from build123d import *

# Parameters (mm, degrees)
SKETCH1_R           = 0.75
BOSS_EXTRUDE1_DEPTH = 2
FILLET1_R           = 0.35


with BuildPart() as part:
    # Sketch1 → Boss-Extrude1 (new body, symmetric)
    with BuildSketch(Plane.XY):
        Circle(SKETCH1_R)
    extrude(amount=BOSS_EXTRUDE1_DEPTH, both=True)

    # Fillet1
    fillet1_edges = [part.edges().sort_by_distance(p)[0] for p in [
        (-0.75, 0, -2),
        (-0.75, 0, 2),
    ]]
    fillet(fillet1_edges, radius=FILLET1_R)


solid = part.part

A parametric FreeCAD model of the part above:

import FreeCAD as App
import Part
import Sketcher
Q = App.Units.Quantity


def edges_at(feature, points):
    """Names of the edges that pass closest to the given points."""
    edges = feature.Shape.Edges
    near = lambda p: min(range(len(edges)), key=lambda i: edges[i].distToShape(Part.Vertex(*p))[0])
    return sorted({f"Edge{near(p) + 1}" for p in points})

doc = App.newDocument("Part")
body = doc.addObject("PartDesign::Body", "Body")

# Sketch on XY plane
sketch1 = body.newObject("Sketcher::SketchObject", "Sketch")
sketch1.AttachmentSupport = (doc.getObject("XY_Plane"), [""])
sketch1.MapMode = "FlatFace"
sketch1.addGeometry(Part.Circle(App.Vector(0, 0, 0), App.Vector(0, 0, 1), 0.8), False)
sketch1.addConstraint([
    Sketcher.Constraint("Coincident", 0, 3, -1, 1),
    Sketcher.Constraint("Diameter", 0, Q("1.5 mm")),
])
pad1 = body.newObject("PartDesign::Pad", "Pad")
pad1.Profile = sketch1
pad1.Length = 4
pad1.Midplane = True
doc.recompute()

fillet = body.newObject("PartDesign::Fillet", "Fillet")
fillet.Base = (pad1, edges_at(pad1, [(-0.75, 0, -2), (-0.75, 0, 2)]))
fillet.Radius = 0.35

doc.recompute()
